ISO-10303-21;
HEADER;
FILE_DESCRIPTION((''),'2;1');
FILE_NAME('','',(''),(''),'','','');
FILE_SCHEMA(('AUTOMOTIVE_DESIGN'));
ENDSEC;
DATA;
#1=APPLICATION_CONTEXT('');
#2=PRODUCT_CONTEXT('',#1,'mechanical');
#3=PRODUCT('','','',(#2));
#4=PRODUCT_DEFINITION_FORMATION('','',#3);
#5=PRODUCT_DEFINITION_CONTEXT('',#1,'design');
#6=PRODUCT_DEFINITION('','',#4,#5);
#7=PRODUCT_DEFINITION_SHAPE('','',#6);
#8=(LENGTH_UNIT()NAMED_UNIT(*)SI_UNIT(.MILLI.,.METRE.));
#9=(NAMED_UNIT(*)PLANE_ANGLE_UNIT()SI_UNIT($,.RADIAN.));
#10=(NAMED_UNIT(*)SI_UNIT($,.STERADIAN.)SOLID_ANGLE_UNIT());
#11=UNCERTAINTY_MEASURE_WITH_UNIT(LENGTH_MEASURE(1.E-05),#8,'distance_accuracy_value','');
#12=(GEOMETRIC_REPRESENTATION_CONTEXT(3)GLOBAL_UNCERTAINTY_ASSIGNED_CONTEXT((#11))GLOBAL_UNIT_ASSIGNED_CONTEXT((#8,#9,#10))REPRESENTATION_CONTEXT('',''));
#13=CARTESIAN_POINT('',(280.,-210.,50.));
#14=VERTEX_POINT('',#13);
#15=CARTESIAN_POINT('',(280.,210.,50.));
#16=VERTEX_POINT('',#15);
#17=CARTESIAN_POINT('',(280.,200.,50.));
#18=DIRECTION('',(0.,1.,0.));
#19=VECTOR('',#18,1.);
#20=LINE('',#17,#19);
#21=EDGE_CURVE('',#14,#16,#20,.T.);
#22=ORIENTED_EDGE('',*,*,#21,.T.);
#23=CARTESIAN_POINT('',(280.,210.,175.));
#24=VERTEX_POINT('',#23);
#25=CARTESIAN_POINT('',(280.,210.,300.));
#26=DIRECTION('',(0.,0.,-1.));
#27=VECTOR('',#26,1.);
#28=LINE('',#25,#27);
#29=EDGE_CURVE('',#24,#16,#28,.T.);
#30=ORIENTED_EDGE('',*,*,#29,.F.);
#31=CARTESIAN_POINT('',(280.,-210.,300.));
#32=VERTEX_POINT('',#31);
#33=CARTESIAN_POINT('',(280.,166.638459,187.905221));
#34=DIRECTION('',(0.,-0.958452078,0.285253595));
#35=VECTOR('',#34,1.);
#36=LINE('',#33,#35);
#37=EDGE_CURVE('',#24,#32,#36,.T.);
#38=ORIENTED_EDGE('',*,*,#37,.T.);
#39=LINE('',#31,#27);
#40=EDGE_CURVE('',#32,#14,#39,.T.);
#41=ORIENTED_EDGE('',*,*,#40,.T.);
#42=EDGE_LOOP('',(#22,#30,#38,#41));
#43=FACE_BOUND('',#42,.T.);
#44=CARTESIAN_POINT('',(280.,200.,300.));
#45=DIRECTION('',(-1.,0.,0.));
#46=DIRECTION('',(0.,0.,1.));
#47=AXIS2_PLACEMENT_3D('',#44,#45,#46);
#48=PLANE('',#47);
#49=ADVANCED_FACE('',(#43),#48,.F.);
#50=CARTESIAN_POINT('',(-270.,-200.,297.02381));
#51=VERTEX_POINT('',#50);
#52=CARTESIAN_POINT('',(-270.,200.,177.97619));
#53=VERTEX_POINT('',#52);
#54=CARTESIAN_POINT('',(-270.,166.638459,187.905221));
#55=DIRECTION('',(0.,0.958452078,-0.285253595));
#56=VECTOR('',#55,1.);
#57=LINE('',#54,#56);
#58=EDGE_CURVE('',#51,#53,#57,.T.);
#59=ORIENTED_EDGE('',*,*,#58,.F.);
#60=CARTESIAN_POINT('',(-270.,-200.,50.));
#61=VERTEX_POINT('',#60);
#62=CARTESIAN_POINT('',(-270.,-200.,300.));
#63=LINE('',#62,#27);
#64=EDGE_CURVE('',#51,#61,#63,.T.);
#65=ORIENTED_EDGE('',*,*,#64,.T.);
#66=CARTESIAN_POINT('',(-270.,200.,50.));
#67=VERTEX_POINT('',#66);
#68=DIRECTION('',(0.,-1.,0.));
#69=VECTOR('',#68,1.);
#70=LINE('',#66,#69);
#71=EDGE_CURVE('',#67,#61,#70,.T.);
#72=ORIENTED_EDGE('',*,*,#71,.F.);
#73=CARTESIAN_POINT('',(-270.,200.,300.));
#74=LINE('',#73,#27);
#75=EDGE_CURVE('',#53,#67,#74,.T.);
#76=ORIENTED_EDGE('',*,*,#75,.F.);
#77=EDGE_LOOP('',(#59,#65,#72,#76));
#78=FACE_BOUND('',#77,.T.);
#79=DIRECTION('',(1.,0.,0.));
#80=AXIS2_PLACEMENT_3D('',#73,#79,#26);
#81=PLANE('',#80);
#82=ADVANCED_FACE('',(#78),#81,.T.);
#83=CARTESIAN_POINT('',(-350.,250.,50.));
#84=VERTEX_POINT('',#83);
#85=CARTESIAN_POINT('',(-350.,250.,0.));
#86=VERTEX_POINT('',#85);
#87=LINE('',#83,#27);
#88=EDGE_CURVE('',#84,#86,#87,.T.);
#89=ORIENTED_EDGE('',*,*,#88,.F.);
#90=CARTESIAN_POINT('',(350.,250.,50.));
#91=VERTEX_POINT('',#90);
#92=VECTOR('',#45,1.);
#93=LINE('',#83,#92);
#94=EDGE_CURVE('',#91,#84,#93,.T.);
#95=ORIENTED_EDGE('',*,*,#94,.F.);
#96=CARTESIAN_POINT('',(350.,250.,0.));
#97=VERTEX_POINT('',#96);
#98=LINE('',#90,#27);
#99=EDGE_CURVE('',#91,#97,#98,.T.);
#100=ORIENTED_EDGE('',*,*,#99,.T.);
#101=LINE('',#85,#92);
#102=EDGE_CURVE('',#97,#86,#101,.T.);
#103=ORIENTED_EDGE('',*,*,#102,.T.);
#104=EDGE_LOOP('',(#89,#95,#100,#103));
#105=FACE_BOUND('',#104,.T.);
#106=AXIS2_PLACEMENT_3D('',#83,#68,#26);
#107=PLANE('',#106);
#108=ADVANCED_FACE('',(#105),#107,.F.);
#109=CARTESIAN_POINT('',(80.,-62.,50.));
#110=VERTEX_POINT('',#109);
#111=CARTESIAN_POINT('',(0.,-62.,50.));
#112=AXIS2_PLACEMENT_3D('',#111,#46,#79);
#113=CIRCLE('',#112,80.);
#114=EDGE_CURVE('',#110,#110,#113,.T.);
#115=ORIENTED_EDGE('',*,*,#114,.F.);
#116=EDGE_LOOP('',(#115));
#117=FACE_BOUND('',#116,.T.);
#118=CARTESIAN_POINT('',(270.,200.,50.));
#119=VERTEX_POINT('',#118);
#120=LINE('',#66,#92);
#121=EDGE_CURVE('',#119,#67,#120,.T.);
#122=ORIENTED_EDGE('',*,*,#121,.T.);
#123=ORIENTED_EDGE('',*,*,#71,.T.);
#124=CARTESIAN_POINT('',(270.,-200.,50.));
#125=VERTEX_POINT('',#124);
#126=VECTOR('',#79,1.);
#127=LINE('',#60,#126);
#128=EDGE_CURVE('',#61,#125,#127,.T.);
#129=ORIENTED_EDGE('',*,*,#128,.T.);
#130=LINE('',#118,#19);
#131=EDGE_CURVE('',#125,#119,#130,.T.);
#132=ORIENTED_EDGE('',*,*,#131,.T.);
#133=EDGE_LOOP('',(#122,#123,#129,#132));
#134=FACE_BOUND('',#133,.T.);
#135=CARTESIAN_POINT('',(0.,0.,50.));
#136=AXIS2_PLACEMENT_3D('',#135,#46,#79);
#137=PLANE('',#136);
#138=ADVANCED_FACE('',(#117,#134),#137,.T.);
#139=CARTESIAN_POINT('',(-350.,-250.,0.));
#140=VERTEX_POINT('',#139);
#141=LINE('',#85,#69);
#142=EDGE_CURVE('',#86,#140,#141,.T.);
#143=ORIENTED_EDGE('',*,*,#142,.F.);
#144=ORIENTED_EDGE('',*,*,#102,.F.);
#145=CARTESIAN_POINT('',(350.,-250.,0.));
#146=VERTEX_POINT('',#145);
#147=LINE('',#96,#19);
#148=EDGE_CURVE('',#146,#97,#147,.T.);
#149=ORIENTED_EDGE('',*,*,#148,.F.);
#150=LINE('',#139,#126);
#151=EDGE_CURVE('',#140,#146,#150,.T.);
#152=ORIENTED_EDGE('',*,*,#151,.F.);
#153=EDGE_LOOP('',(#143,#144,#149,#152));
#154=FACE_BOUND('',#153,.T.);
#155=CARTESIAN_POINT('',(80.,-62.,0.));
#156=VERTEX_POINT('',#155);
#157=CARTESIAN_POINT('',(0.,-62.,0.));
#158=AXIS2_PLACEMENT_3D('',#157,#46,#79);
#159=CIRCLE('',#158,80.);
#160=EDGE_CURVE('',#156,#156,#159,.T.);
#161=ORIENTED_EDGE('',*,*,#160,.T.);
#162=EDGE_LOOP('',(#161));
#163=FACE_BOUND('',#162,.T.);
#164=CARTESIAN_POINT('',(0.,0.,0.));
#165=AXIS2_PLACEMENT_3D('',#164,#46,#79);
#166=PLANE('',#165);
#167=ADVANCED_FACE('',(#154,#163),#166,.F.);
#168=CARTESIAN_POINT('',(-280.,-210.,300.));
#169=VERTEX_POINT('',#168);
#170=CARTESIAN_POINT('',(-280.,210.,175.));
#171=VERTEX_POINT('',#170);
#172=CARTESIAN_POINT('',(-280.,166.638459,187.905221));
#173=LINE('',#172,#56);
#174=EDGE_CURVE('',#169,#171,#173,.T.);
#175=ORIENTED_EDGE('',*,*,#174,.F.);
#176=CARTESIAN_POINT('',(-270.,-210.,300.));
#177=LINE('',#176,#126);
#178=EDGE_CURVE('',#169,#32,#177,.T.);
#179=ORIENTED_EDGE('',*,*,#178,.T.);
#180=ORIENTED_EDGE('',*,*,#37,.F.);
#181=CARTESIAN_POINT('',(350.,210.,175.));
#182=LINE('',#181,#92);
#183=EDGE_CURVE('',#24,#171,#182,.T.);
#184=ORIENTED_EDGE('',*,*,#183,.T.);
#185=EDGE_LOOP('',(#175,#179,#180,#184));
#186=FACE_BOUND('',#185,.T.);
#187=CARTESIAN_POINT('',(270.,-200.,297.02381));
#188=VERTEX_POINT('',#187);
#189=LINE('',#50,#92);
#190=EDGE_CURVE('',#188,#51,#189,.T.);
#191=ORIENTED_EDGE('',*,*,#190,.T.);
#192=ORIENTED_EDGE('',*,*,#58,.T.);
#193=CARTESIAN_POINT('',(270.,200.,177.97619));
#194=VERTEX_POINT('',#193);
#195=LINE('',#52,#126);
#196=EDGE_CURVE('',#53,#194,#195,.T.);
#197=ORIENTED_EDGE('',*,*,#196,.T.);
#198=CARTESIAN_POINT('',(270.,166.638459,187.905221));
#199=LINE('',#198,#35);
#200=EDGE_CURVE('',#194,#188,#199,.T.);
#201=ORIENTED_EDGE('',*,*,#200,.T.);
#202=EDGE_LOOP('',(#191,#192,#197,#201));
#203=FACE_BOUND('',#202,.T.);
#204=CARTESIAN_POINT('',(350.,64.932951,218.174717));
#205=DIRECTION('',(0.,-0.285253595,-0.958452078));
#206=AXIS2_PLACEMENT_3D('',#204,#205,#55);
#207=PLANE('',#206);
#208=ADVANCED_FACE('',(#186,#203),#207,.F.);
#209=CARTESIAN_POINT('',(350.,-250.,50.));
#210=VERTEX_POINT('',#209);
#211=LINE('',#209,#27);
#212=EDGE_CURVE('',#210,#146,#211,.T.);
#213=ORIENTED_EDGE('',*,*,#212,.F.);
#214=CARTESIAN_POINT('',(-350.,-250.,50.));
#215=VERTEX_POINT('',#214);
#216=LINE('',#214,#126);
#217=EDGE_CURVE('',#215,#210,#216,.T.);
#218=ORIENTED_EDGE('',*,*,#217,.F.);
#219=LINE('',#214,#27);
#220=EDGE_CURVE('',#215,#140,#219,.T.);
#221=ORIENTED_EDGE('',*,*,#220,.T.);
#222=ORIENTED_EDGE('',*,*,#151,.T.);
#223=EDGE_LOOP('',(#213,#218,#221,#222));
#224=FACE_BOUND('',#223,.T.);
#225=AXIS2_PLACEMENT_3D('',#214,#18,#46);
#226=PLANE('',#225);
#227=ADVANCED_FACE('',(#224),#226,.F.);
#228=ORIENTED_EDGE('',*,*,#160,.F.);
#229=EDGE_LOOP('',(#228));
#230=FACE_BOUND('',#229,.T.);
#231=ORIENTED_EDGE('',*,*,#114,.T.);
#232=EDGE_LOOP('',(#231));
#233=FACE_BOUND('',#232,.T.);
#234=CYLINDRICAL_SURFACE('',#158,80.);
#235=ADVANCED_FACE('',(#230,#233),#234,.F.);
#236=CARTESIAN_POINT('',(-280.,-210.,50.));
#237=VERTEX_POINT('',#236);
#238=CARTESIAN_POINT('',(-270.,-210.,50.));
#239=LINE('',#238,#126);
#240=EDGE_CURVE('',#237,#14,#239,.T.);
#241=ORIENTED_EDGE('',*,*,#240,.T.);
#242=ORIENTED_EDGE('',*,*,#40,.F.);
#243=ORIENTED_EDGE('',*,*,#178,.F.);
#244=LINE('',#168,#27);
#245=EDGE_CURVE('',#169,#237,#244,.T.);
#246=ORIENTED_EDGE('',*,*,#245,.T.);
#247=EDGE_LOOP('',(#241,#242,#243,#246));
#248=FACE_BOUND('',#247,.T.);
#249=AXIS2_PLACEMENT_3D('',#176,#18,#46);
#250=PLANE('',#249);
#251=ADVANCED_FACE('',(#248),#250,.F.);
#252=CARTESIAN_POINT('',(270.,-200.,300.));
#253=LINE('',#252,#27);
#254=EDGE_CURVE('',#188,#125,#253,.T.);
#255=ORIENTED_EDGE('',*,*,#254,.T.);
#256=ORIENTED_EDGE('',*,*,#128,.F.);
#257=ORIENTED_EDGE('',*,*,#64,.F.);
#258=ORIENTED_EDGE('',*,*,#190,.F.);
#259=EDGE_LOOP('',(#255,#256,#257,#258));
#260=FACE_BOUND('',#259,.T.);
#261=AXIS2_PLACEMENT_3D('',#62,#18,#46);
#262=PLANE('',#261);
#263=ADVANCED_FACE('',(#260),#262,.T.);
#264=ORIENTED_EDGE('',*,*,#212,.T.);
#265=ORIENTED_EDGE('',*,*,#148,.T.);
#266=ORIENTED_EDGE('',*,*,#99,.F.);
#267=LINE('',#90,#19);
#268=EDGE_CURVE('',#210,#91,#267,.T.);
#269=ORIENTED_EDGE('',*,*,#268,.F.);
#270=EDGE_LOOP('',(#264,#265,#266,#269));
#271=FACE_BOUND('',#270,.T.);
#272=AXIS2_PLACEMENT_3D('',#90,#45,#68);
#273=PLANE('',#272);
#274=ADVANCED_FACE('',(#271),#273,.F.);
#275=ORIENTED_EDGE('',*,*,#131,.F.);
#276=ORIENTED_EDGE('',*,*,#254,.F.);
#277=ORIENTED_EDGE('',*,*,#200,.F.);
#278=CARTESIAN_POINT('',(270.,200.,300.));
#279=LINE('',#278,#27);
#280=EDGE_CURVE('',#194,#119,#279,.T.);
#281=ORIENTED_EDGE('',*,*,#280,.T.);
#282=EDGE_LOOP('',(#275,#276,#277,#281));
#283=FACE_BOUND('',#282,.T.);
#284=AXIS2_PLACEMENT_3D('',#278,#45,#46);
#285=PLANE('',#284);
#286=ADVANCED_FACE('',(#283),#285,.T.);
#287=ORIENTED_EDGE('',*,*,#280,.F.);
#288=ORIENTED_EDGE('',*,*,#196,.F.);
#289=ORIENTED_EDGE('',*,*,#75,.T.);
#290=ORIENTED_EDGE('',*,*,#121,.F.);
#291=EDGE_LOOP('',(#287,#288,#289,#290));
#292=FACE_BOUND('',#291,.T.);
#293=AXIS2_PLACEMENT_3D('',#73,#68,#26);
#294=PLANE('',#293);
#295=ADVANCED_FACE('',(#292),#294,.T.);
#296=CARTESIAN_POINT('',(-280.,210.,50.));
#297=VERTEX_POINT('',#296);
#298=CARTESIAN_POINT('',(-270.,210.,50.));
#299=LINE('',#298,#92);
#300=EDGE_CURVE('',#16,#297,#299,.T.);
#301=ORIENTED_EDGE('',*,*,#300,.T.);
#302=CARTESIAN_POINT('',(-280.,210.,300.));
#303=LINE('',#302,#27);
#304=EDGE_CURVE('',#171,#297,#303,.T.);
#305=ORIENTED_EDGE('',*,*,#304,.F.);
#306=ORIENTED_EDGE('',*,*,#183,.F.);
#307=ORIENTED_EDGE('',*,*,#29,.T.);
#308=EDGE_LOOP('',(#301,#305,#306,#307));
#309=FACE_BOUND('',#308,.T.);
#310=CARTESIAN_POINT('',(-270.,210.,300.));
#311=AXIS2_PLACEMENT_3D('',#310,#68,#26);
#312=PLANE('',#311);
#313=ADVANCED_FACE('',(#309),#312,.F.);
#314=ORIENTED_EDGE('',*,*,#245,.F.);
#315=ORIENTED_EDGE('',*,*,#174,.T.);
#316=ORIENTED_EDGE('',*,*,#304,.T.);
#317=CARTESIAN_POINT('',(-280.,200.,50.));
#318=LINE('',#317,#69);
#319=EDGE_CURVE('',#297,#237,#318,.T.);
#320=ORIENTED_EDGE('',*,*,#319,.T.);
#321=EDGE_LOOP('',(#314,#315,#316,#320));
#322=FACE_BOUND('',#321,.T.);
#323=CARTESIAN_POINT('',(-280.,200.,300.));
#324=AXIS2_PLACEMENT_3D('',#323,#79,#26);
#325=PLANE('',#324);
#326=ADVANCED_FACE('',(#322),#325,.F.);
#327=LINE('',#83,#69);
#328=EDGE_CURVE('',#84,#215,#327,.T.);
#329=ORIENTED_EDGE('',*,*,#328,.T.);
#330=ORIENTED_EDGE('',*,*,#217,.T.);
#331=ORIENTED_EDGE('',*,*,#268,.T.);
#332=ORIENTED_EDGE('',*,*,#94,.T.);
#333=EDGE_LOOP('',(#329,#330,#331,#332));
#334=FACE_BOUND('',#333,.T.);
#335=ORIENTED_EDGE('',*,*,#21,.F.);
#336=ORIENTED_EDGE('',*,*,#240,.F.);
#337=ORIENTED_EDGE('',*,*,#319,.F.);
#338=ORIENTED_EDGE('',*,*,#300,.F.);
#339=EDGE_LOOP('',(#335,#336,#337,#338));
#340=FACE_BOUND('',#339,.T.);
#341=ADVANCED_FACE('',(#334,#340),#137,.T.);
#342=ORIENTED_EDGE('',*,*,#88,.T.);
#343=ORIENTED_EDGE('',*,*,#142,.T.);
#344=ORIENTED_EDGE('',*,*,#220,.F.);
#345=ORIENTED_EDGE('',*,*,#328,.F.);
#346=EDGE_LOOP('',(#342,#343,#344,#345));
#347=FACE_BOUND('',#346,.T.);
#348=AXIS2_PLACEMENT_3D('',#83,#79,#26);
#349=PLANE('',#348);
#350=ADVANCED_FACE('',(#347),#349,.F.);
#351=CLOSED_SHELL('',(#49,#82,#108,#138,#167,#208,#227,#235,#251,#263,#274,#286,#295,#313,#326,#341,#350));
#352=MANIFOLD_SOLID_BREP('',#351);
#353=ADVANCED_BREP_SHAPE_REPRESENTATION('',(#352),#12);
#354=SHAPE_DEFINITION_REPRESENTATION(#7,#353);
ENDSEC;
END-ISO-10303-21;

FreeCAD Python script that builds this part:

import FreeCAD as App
import Part
import Sketcher
from FreeCAD import Vector

doc = App.newDocument("Part")
body = doc.addObject("PartDesign::Body", "Body")

# Sketch on XY plane
sketch1 = body.newObject("Sketcher::SketchObject", "Sketch")
sketch1.AttachmentSupport = (doc.getObject("XY_Plane"), [""])
sketch1.MapMode = "FlatFace"
sketch1.addGeometry([
    Part.LineSegment(Vector(-350, 250, 0), Vector(-350, -250, 0)),
    Part.LineSegment(Vector(-350, -250, 0), Vector(350, -250, 0)),
    Part.LineSegment(Vector(350, -250, 0), Vector(350, 250, 0)),
    Part.LineSegment(Vector(350, 250, 0), Vector(-350, 250, 0)),
], False)
sketch1.addConstraint([
    Sketcher.Constraint("Coincident", 0, 2, 1, 1),
    Sketcher.Constraint("Coincident", 1, 2, 2, 1),
    Sketcher.Constraint("Coincident", 2, 2, 3, 1),
    Sketcher.Constraint("Coincident", 3, 2, 0, 1),
    Sketcher.Constraint("Vertical", 0),
    Sketcher.Constraint("Horizontal", 1),
    Sketcher.Constraint("Vertical", 2),
    Sketcher.Constraint("Horizontal", 3),
    Sketcher.Constraint("Symmetric", 0, 2, 2, 2, -1, 1),
    Sketcher.Constraint("DistanceX", 1, 1, 1, 2, 700.0),
    Sketcher.Constraint("DistanceY", 0, 2, 0, 1, 500.0),
])
pad1 = body.newObject("PartDesign::Pad", "Pad")
pad1.Profile = sketch1
pad1.Length = 50

# Sketch on XY plane
sketch2 = body.newObject("Sketcher::SketchObject", "Sketch001")
sketch2.AttachmentSupport = (doc.getObject("XY_Plane"), [""])
sketch2.MapMode = "FlatFace"
sketch2.AttachmentOffset = App.Placement(Vector(0, 0, 50), App.Rotation())
sketch2.addGeometry([
    Part.LineSegment(Vector(-280, 210, 0), Vector(-280, -210, 0)),  # 0
    Part.LineSegment(Vector(-280, -210, 0), Vector(280, -210, 0)),  # 1
    Part.LineSegment(Vector(280, -210, 0), Vector(280, 210, 0)),  # 2
    Part.LineSegment(Vector(280, 210, 0), Vector(-280, 210, 0)),  # 3
    Part.LineSegment(Vector(270, -200, 0), Vector(-270, -200, 0)),  # 4
    Part.LineSegment(Vector(-270, -200, 0), Vector(-270, 200, 0)),  # 5
    Part.LineSegment(Vector(-270, 200, 0), Vector(270, 200, 0)),  # 6
    Part.LineSegment(Vector(270, 200, 0), Vector(270, -200, 0)),  # 7
], False)
sketch2.addConstraint([
    Sketcher.Constraint("Coincident", 0, 2, 1, 1),
    Sketcher.Constraint("Coincident", 1, 2, 2, 1),
    Sketcher.Constraint("Coincident", 2, 2, 3, 1),
    Sketcher.Constraint("Coincident", 3, 2, 0, 1),
    Sketcher.Constraint("Coincident", 4, 2, 5, 1),
    Sketcher.Constraint("Coincident", 5, 2, 6, 1),
    Sketcher.Constraint("Coincident", 6, 2, 7, 1),
    Sketcher.Constraint("Coincident", 7, 2, 4, 1),
    Sketcher.Constraint("Vertical", 0),
    Sketcher.Constraint("Horizontal", 1),
    Sketcher.Constraint("Vertical", 2),
    Sketcher.Constraint("Horizontal", 3),
    Sketcher.Constraint("Horizontal", 4),
    Sketcher.Constraint("Vertical", 5),
    Sketcher.Constraint("Horizontal", 6),
    Sketcher.Constraint("Vertical", 7),
    Sketcher.Constraint("Symmetric", 0, 2, 2, 2, -1, 1),
    Sketcher.Constraint("Symmetric", 4, 2, 6, 2, -1, 1),
    Sketcher.Constraint("DistanceX", 1, 1, 1, 2, 560.0),
    Sketcher.Constraint("DistanceX", 4, 2, 4, 1, 540.0),
    Sketcher.Constraint("DistanceY", 0, 2, 0, 1, 420.0),
    Sketcher.Constraint("DistanceY", 5, 1, 5, 2, 400.0),
])
pad2 = body.newObject("PartDesign::Pad", "Pad001")
pad2.Profile = sketch2
pad2.Length = 250

# Sketch on YZ plane
sketch3 = body.newObject("Sketcher::SketchObject", "Sketch002")
sketch3.AttachmentSupport = (doc.getObject("YZ_Plane"), [""])
sketch3.MapMode = "FlatFace"
sketch3.AttachmentOffset = App.Placement(Vector(0, 0, -280), App.Rotation())
sketch3.addGeometry([
    Part.LineSegment(Vector(210, 300, 0), Vector(210, 175, 0)),
    Part.LineSegment(Vector(210, 175, 0), Vector(-210, 300, 0)),
    Part.LineSegment(Vector(-210, 300, 0), Vector(210, 300, 0)),
], False)
sketch3.addConstraint([
    Sketcher.Constraint("Coincident", 0, 2, 1, 1),
    Sketcher.Constraint("Coincident", 1, 2, 2, 1),
    Sketcher.Constraint("Coincident", 2, 2, 0, 1),
    Sketcher.Constraint("Vertical", 0),
    Sketcher.Constraint("Horizontal", 2),
    Sketcher.Constraint("DistanceX", 2, 1, 2, 2, 420.0),
    Sketcher.Constraint("DistanceY", 0, 2, 0, 1, 125.0),
    Sketcher.Constraint("DistanceX", -1, 1, 0, 2, 210.0),
    Sketcher.Constraint("DistanceY", -1, 1, 0, 2, 175.0),
])
pocket1 = body.newObject("PartDesign::Pocket", "Pocket")
pocket1.Profile = sketch3
pocket1.Type = "ThroughAll"
pocket1.Midplane = True

# Sketch on XY plane
sketch4 = body.newObject("Sketcher::SketchObject", "Sketch003")
sketch4.AttachmentSupport = (doc.getObject("XY_Plane"), [""])
sketch4.MapMode = "FlatFace"
sketch4.AttachmentOffset = App.Placement(Vector(0, 0, 50), App.Rotation())
sketch4.addGeometry(Part.Circle(Vector(0, -62, 0), Vector(0, 0, 1), 80), False)
sketch4.addConstraint([
    Sketcher.Constraint("PointOnObject", 0, 3, -2),
    Sketcher.Constraint("Diameter", 0, 160.0),
    Sketcher.Constraint("DistanceY", 0, 3, -1, 1, 62.0),
])
pocket2 = body.newObject("PartDesign::Pocket", "Pocket001")
pocket2.Profile = sketch4
pocket2.Type = "ThroughAll"

doc.recompute()
